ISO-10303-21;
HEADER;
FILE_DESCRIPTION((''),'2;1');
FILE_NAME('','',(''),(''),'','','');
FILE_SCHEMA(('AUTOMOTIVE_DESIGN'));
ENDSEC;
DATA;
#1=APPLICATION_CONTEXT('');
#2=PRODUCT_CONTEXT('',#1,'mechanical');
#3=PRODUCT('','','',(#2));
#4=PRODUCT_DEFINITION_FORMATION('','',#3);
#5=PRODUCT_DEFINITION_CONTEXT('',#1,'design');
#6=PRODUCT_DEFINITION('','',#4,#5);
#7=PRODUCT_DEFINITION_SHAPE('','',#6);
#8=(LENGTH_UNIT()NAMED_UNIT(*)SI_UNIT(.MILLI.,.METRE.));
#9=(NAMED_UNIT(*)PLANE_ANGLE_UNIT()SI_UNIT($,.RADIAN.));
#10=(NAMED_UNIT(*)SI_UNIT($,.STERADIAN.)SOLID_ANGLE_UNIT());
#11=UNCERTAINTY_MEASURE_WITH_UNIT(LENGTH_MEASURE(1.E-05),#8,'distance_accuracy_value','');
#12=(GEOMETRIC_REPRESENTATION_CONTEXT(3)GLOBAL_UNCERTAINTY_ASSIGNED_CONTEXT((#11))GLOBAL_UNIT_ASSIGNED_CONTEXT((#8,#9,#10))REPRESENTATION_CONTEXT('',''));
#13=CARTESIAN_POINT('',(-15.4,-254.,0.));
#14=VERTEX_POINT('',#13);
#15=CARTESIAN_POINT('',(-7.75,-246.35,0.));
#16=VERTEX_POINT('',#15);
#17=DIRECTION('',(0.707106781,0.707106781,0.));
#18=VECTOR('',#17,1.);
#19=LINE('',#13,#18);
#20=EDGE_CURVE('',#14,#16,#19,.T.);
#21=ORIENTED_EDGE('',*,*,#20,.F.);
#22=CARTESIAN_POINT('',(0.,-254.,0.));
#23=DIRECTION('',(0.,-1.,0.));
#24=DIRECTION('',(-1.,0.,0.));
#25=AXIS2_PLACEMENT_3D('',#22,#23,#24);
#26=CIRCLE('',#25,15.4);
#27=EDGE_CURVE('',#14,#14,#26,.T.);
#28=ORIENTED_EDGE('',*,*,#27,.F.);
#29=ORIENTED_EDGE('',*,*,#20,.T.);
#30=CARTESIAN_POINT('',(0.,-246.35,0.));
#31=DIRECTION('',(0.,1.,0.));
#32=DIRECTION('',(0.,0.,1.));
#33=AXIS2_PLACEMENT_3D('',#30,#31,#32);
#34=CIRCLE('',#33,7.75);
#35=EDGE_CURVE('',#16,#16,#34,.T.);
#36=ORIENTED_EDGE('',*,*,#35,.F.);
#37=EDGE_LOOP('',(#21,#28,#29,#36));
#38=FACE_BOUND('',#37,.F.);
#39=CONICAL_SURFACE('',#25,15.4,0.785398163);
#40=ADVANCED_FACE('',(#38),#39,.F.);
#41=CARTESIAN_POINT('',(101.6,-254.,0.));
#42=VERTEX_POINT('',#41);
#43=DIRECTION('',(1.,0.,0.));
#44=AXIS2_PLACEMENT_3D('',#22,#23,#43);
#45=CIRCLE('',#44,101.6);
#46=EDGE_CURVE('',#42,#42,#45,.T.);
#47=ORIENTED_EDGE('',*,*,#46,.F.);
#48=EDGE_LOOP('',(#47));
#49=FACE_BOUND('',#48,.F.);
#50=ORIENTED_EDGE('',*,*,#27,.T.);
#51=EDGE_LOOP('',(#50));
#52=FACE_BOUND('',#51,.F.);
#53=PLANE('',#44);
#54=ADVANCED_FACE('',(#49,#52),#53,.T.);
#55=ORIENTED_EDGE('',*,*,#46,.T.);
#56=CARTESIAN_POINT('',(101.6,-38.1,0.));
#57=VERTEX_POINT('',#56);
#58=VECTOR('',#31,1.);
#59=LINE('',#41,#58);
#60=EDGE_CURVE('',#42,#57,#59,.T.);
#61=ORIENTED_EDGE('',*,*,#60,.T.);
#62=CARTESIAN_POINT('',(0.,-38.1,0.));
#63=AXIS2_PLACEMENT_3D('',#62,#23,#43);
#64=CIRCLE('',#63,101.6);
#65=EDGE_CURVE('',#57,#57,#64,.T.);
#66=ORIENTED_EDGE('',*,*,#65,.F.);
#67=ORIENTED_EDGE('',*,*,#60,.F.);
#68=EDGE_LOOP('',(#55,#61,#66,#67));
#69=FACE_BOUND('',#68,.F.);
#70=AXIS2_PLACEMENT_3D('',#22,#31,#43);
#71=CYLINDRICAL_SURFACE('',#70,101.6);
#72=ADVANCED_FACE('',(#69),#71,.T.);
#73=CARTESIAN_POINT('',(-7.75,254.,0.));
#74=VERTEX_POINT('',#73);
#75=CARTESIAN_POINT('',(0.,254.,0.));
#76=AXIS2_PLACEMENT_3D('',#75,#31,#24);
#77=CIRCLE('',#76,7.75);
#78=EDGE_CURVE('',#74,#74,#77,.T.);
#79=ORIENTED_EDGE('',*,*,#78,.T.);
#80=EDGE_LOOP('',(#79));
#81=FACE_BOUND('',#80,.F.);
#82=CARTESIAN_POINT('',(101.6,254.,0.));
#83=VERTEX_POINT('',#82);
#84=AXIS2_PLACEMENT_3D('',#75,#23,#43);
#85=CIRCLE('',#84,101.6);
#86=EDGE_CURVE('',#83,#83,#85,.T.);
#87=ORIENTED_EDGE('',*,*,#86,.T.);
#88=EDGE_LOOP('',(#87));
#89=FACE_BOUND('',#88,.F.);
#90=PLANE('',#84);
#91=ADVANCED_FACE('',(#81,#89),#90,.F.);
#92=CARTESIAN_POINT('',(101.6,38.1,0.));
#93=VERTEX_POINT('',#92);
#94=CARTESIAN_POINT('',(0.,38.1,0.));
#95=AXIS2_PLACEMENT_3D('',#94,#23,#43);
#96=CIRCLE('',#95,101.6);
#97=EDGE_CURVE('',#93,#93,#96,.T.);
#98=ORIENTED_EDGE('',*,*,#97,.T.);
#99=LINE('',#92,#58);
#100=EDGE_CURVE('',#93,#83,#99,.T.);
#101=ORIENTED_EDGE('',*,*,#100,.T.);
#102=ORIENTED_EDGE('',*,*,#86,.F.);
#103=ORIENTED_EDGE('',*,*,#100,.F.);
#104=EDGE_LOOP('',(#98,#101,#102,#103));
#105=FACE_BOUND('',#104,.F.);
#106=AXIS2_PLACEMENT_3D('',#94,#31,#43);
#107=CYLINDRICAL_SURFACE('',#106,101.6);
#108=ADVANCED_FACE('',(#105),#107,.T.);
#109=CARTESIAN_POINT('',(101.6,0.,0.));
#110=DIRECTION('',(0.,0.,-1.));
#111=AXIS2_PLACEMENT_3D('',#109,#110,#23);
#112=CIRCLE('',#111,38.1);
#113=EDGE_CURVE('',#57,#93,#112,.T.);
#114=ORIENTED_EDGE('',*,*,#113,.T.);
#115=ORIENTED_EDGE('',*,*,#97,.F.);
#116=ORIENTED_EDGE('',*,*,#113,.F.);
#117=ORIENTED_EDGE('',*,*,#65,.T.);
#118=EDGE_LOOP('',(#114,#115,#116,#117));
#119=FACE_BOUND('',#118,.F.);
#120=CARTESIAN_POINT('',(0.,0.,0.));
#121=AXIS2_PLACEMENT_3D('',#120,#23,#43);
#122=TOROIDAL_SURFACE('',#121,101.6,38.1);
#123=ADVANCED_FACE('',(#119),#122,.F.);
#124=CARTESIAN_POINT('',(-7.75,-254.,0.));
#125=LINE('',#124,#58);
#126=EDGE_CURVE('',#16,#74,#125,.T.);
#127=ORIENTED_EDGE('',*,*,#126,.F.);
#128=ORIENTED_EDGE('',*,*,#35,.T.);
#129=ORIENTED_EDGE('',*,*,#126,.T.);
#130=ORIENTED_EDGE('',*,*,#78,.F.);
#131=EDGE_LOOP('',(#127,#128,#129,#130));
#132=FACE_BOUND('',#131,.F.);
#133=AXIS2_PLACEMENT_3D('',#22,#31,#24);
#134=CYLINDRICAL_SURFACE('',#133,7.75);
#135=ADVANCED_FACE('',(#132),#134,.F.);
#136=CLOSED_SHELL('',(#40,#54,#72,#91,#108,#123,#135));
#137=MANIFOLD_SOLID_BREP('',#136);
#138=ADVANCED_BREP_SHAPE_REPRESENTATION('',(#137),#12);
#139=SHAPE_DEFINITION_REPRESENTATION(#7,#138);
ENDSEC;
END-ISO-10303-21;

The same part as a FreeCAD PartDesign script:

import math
import FreeCAD as App
import Part
import Sketcher
from FreeCAD import Vector
Q = App.Units.Quantity

doc = App.newDocument("Part")
params = doc.addObject("Spreadsheet::Sheet", "Params")
for row, (alias, value) in enumerate([
    ("sketch1_radius", "1.5 in"),
    ("sketch1_width", "4 in"),
    ("sketch1_height", "20 in"),
    ("revolution_angle", "360 deg"),
    ("hole_diameter", "15.5 mm"),
    ("hole_csink_diameter", "30.8 mm"),
], start=1):
    params.set(f"A{row}", alias)
    params.set(f"B{row}", "=" + value)
    params.setAlias(f"B{row}", alias)

body = doc.addObject("PartDesign::Body", "Body")

# Sketch on XY plane
sketch1 = doc.addObject("Sketcher::SketchObject", "Sketch")
body.addObject(sketch1)
sketch1.AttachmentSupport = (doc.XY_Plane, [""])
sketch1.MapMode = "FlatFace"
sketch1.addGeometry([
    Part.LineSegment(Vector(102, 254, 0), Vector(0, 254, 0)),  # 0
    Part.LineSegment(Vector(0, 254, 0), Vector(0, -254, 0)),  # 1
    Part.LineSegment(Vector(0, -254, 0), Vector(102, -254, 0)),  # 2
    Part.LineSegment(Vector(102, -254, 0), Vector(102, -38, 0)),  # 3
    Part.ArcOfCircle(Part.Circle(Vector(102, 0, 0), Vector(0, 0, 1), 38), math.radians(90), math.radians(270)),  # 4
    Part.LineSegment(Vector(102, 38, 0), Vector(102, 254, 0)),  # 5
], False)
sketch1.addConstraint([
    Sketcher.Constraint("Coincident", 0, 2, 1, 1),
    Sketcher.Constraint("Coincident", 1, 2, 2, 1),
    Sketcher.Constraint("Coincident", 2, 2, 3, 1),
    Sketcher.Constraint("Coincident", 3, 2, 4, 2),
    Sketcher.Constraint("Coincident", 4, 1, 5, 1),
    Sketcher.Constraint("Coincident", 5, 2, 0, 1),
    Sketcher.Constraint("Horizontal", 0),
    Sketcher.Constraint("Vertical", 1),
    Sketcher.Constraint("Horizontal", 2),
    Sketcher.Constraint("Vertical", 3),
    Sketcher.Constraint("Vertical", 5),
    Sketcher.Constraint("Symmetric", 0, 2, 1, 2, -1, 1),
    Sketcher.Constraint("Symmetric", 3, 2, 4, 1, -1),
    Sketcher.Constraint("Vertical", 4, 3, 2, 2),
    Sketcher.Constraint("Radius", 4, Q("1.5 in")),
    Sketcher.Constraint("DistanceX", 0, 2, 0, 1, Q("4 in")),
    Sketcher.Constraint("DistanceY", 1, 2, 1, 1, Q("20 in")),
])
sketch1.setExpression("Constraints[14]", "Params.sketch1_radius")
sketch1.setExpression("Constraints[15]", "Params.sketch1_width")
sketch1.setExpression("Constraints[16]", "Params.sketch1_height")
revolution = doc.addObject("PartDesign::Revolution", "Revolution")
body.addObject(revolution)
revolution.Profile = sketch1
revolution.ReferenceAxis = (sketch1, ["V_Axis"])
revolution.setExpression("Angle", "Params.revolution_angle")

# Sketch on XZ plane
sketch2 = doc.addObject("Sketcher::SketchObject", "Sketch001")
body.addObject(sketch2)
sketch2.AttachmentSupport = (doc.XZ_Plane, [""])
sketch2.MapMode = "FlatFace"
sketch2.AttachmentOffset = App.Placement(Vector(0, 0, 10 * 25.4), App.Rotation())
sketch2.addGeometry(Part.Circle(Vector(0, 0, 0), Vector(0, 0, 1), 8), False)
sketch2.addConstraint([
    Sketcher.Constraint("Coincident", 0, 3, -1, 1),
    Sketcher.Constraint("Diameter", 0, Q("15.5 mm")),
])
doc.recompute()
hole = doc.addObject("PartDesign::Hole", "Hole")
body.addObject(hole)
hole.Profile = sketch2
hole.ThreadType = "None"
hole.setExpression("Diameter", "Params.hole_diameter")
hole.DepthType = "ThroughAll"
hole.HoleCutType = "Countersink"
hole.setExpression("HoleCutDiameter", "Params.hole_csink_diameter")
hole.HoleCutCountersinkAngle = 90

doc.recompute()
